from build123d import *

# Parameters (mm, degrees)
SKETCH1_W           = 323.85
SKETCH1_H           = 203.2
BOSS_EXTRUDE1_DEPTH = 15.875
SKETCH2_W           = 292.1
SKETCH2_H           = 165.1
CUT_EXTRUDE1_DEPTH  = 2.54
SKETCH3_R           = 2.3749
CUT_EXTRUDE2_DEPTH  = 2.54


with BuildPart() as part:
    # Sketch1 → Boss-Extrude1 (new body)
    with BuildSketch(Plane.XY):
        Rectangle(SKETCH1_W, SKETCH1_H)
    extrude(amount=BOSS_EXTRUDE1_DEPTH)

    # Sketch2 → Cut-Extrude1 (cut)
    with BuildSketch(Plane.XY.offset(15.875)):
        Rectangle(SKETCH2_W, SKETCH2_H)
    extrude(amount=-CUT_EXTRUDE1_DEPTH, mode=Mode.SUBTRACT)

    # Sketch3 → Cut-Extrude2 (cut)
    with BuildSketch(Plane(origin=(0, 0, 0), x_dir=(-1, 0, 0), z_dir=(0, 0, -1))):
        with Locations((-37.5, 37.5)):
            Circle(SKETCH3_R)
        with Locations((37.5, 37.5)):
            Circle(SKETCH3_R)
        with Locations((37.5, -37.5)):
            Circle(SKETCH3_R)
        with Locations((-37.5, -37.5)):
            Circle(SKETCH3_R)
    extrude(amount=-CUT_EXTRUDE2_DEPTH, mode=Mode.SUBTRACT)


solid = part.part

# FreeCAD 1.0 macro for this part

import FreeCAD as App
import Part
import Sketcher
Q = App.Units.Quantity


def add_polygon(sketch, points):
    """Adds a closed chain of lines whose ends are joined by coincident constraints."""
    first, n = sketch.GeometryCount, len(points)
    for a, b in zip(points, points[1:] + points[:1]):
        sketch.addGeometry(Part.LineSegment(App.Vector(*a, 0), App.Vector(*b, 0)), False)
    for i in range(n):
        sketch.addConstraint(Sketcher.Constraint("Coincident", first + i, 2, first + (i + 1) % n, 1))

doc = App.newDocument("Part")
body = doc.addObject("PartDesign::Body", "Body")

# Sketch on XY plane
sketch1 = body.newObject("Sketcher::SketchObject", "Sketch")
sketch1.AttachmentSupport = (doc.getObject("XY_Plane"), [""])
sketch1.MapMode = "FlatFace"
add_polygon(sketch1, [(-162, 102), (-162, -102), (162, -102), (162, 102)])  # lines 0-3
sketch1.addConstraint([
    Sketcher.Constraint("Vertical", 0),
    Sketcher.Constraint("Horizontal", 1),
    Sketcher.Constraint("Vertical", 2),
    Sketcher.Constraint("Horizontal", 3),
    Sketcher.Constraint("Symmetric", 0, 2, 2, 2, -1, 1),
    Sketcher.Constraint("DistanceY", 0, 2, 0, 1, Q("8 in")),
    Sketcher.Constraint("DistanceX", 1, 1, 1, 2, Q("12.75 in")),
])
pad1 = body.newObject("PartDesign::Pad", "Pad")
pad1.Profile = sketch1
pad1.Length = Q("0.625 in")

# Sketch on XY plane
sketch2 = body.newObject("Sketcher::SketchObject", "Sketch001")
sketch2.AttachmentSupport = (doc.getObject("XY_Plane"), [""])
sketch2.MapMode = "FlatFace"
sketch2.AttachmentOffset = App.Placement(App.Vector(0, 0, 0.625 * 25.4), App.Rotation())
add_polygon(sketch2, [(-146, 83), (-146, -83), (146, -83), (146, 83)])  # lines 0-3
sketch2.addConstraint([
    Sketcher.Constraint("Vertical", 0),
    Sketcher.Constraint("Horizontal", 1),
    Sketcher.Constraint("Vertical", 2),
    Sketcher.Constraint("Horizontal", 3),
    Sketcher.Constraint("Symmetric", 0, 2, 2, 2, -1, 1),
    Sketcher.Constraint("DistanceX", 1, 1, 1, 2, Q("11.5 in")),
    Sketcher.Constraint("DistanceY", 0, 2, 0, 1, Q("6.5 in")),
])
pocket1 = body.newObject("PartDesign::Pocket", "Pocket")
pocket1.Profile = sketch2
pocket1.Length = Q("0.1 in")

# Sketch on XY plane
sketch3 = body.newObject("Sketcher::SketchObject", "Sketch002")
sketch3.AttachmentSupport = (doc.getObject("XY_Plane"), [""])
sketch3.MapMode = "FlatFace"
sketch3.addGeometry([
    Part.Circle(App.Vector(37.5, 37.5, 0), App.Vector(0, 0, 1), 2.4),
    Part.Circle(App.Vector(-37.5, 37.5, 0), App.Vector(0, 0, 1), 2.4),
    Part.Circle(App.Vector(-37.5, -37.5, 0), App.Vector(0, 0, 1), 2.4),
    Part.Circle(App.Vector(37.5, -37.5, 0), App.Vector(0, 0, 1), 2.4),
], False)
sketch3.addConstraint([
    Sketcher.Constraint("Equal", 0, 1),
    Sketcher.Constraint("Equal", 1, 2),
    Sketcher.Constraint("Equal", 2, 3),
    Sketcher.Constraint("Symmetric", 0, 3, 2, 3, -1, 1),
    Sketcher.Constraint("Symmetric", 1, 3, 3, 3, -1, 1),
    Sketcher.Constraint("Symmetric", 0, 3, 1, 3, -2),
    Sketcher.Constraint("Diameter", 0, Q("0.187 in")),
    Sketcher.Constraint("DistanceX", -1, 1, 0, 3, 37.5),
    Sketcher.Constraint("DistanceY", -1, 1, 0, 3, 37.5),
])
pocket2 = body.newObject("PartDesign::Pocket", "Pocket001")
pocket2.Profile = sketch3
pocket2.Length = Q("0.1 in")
pocket2.Reversed = True

doc.recompute()
